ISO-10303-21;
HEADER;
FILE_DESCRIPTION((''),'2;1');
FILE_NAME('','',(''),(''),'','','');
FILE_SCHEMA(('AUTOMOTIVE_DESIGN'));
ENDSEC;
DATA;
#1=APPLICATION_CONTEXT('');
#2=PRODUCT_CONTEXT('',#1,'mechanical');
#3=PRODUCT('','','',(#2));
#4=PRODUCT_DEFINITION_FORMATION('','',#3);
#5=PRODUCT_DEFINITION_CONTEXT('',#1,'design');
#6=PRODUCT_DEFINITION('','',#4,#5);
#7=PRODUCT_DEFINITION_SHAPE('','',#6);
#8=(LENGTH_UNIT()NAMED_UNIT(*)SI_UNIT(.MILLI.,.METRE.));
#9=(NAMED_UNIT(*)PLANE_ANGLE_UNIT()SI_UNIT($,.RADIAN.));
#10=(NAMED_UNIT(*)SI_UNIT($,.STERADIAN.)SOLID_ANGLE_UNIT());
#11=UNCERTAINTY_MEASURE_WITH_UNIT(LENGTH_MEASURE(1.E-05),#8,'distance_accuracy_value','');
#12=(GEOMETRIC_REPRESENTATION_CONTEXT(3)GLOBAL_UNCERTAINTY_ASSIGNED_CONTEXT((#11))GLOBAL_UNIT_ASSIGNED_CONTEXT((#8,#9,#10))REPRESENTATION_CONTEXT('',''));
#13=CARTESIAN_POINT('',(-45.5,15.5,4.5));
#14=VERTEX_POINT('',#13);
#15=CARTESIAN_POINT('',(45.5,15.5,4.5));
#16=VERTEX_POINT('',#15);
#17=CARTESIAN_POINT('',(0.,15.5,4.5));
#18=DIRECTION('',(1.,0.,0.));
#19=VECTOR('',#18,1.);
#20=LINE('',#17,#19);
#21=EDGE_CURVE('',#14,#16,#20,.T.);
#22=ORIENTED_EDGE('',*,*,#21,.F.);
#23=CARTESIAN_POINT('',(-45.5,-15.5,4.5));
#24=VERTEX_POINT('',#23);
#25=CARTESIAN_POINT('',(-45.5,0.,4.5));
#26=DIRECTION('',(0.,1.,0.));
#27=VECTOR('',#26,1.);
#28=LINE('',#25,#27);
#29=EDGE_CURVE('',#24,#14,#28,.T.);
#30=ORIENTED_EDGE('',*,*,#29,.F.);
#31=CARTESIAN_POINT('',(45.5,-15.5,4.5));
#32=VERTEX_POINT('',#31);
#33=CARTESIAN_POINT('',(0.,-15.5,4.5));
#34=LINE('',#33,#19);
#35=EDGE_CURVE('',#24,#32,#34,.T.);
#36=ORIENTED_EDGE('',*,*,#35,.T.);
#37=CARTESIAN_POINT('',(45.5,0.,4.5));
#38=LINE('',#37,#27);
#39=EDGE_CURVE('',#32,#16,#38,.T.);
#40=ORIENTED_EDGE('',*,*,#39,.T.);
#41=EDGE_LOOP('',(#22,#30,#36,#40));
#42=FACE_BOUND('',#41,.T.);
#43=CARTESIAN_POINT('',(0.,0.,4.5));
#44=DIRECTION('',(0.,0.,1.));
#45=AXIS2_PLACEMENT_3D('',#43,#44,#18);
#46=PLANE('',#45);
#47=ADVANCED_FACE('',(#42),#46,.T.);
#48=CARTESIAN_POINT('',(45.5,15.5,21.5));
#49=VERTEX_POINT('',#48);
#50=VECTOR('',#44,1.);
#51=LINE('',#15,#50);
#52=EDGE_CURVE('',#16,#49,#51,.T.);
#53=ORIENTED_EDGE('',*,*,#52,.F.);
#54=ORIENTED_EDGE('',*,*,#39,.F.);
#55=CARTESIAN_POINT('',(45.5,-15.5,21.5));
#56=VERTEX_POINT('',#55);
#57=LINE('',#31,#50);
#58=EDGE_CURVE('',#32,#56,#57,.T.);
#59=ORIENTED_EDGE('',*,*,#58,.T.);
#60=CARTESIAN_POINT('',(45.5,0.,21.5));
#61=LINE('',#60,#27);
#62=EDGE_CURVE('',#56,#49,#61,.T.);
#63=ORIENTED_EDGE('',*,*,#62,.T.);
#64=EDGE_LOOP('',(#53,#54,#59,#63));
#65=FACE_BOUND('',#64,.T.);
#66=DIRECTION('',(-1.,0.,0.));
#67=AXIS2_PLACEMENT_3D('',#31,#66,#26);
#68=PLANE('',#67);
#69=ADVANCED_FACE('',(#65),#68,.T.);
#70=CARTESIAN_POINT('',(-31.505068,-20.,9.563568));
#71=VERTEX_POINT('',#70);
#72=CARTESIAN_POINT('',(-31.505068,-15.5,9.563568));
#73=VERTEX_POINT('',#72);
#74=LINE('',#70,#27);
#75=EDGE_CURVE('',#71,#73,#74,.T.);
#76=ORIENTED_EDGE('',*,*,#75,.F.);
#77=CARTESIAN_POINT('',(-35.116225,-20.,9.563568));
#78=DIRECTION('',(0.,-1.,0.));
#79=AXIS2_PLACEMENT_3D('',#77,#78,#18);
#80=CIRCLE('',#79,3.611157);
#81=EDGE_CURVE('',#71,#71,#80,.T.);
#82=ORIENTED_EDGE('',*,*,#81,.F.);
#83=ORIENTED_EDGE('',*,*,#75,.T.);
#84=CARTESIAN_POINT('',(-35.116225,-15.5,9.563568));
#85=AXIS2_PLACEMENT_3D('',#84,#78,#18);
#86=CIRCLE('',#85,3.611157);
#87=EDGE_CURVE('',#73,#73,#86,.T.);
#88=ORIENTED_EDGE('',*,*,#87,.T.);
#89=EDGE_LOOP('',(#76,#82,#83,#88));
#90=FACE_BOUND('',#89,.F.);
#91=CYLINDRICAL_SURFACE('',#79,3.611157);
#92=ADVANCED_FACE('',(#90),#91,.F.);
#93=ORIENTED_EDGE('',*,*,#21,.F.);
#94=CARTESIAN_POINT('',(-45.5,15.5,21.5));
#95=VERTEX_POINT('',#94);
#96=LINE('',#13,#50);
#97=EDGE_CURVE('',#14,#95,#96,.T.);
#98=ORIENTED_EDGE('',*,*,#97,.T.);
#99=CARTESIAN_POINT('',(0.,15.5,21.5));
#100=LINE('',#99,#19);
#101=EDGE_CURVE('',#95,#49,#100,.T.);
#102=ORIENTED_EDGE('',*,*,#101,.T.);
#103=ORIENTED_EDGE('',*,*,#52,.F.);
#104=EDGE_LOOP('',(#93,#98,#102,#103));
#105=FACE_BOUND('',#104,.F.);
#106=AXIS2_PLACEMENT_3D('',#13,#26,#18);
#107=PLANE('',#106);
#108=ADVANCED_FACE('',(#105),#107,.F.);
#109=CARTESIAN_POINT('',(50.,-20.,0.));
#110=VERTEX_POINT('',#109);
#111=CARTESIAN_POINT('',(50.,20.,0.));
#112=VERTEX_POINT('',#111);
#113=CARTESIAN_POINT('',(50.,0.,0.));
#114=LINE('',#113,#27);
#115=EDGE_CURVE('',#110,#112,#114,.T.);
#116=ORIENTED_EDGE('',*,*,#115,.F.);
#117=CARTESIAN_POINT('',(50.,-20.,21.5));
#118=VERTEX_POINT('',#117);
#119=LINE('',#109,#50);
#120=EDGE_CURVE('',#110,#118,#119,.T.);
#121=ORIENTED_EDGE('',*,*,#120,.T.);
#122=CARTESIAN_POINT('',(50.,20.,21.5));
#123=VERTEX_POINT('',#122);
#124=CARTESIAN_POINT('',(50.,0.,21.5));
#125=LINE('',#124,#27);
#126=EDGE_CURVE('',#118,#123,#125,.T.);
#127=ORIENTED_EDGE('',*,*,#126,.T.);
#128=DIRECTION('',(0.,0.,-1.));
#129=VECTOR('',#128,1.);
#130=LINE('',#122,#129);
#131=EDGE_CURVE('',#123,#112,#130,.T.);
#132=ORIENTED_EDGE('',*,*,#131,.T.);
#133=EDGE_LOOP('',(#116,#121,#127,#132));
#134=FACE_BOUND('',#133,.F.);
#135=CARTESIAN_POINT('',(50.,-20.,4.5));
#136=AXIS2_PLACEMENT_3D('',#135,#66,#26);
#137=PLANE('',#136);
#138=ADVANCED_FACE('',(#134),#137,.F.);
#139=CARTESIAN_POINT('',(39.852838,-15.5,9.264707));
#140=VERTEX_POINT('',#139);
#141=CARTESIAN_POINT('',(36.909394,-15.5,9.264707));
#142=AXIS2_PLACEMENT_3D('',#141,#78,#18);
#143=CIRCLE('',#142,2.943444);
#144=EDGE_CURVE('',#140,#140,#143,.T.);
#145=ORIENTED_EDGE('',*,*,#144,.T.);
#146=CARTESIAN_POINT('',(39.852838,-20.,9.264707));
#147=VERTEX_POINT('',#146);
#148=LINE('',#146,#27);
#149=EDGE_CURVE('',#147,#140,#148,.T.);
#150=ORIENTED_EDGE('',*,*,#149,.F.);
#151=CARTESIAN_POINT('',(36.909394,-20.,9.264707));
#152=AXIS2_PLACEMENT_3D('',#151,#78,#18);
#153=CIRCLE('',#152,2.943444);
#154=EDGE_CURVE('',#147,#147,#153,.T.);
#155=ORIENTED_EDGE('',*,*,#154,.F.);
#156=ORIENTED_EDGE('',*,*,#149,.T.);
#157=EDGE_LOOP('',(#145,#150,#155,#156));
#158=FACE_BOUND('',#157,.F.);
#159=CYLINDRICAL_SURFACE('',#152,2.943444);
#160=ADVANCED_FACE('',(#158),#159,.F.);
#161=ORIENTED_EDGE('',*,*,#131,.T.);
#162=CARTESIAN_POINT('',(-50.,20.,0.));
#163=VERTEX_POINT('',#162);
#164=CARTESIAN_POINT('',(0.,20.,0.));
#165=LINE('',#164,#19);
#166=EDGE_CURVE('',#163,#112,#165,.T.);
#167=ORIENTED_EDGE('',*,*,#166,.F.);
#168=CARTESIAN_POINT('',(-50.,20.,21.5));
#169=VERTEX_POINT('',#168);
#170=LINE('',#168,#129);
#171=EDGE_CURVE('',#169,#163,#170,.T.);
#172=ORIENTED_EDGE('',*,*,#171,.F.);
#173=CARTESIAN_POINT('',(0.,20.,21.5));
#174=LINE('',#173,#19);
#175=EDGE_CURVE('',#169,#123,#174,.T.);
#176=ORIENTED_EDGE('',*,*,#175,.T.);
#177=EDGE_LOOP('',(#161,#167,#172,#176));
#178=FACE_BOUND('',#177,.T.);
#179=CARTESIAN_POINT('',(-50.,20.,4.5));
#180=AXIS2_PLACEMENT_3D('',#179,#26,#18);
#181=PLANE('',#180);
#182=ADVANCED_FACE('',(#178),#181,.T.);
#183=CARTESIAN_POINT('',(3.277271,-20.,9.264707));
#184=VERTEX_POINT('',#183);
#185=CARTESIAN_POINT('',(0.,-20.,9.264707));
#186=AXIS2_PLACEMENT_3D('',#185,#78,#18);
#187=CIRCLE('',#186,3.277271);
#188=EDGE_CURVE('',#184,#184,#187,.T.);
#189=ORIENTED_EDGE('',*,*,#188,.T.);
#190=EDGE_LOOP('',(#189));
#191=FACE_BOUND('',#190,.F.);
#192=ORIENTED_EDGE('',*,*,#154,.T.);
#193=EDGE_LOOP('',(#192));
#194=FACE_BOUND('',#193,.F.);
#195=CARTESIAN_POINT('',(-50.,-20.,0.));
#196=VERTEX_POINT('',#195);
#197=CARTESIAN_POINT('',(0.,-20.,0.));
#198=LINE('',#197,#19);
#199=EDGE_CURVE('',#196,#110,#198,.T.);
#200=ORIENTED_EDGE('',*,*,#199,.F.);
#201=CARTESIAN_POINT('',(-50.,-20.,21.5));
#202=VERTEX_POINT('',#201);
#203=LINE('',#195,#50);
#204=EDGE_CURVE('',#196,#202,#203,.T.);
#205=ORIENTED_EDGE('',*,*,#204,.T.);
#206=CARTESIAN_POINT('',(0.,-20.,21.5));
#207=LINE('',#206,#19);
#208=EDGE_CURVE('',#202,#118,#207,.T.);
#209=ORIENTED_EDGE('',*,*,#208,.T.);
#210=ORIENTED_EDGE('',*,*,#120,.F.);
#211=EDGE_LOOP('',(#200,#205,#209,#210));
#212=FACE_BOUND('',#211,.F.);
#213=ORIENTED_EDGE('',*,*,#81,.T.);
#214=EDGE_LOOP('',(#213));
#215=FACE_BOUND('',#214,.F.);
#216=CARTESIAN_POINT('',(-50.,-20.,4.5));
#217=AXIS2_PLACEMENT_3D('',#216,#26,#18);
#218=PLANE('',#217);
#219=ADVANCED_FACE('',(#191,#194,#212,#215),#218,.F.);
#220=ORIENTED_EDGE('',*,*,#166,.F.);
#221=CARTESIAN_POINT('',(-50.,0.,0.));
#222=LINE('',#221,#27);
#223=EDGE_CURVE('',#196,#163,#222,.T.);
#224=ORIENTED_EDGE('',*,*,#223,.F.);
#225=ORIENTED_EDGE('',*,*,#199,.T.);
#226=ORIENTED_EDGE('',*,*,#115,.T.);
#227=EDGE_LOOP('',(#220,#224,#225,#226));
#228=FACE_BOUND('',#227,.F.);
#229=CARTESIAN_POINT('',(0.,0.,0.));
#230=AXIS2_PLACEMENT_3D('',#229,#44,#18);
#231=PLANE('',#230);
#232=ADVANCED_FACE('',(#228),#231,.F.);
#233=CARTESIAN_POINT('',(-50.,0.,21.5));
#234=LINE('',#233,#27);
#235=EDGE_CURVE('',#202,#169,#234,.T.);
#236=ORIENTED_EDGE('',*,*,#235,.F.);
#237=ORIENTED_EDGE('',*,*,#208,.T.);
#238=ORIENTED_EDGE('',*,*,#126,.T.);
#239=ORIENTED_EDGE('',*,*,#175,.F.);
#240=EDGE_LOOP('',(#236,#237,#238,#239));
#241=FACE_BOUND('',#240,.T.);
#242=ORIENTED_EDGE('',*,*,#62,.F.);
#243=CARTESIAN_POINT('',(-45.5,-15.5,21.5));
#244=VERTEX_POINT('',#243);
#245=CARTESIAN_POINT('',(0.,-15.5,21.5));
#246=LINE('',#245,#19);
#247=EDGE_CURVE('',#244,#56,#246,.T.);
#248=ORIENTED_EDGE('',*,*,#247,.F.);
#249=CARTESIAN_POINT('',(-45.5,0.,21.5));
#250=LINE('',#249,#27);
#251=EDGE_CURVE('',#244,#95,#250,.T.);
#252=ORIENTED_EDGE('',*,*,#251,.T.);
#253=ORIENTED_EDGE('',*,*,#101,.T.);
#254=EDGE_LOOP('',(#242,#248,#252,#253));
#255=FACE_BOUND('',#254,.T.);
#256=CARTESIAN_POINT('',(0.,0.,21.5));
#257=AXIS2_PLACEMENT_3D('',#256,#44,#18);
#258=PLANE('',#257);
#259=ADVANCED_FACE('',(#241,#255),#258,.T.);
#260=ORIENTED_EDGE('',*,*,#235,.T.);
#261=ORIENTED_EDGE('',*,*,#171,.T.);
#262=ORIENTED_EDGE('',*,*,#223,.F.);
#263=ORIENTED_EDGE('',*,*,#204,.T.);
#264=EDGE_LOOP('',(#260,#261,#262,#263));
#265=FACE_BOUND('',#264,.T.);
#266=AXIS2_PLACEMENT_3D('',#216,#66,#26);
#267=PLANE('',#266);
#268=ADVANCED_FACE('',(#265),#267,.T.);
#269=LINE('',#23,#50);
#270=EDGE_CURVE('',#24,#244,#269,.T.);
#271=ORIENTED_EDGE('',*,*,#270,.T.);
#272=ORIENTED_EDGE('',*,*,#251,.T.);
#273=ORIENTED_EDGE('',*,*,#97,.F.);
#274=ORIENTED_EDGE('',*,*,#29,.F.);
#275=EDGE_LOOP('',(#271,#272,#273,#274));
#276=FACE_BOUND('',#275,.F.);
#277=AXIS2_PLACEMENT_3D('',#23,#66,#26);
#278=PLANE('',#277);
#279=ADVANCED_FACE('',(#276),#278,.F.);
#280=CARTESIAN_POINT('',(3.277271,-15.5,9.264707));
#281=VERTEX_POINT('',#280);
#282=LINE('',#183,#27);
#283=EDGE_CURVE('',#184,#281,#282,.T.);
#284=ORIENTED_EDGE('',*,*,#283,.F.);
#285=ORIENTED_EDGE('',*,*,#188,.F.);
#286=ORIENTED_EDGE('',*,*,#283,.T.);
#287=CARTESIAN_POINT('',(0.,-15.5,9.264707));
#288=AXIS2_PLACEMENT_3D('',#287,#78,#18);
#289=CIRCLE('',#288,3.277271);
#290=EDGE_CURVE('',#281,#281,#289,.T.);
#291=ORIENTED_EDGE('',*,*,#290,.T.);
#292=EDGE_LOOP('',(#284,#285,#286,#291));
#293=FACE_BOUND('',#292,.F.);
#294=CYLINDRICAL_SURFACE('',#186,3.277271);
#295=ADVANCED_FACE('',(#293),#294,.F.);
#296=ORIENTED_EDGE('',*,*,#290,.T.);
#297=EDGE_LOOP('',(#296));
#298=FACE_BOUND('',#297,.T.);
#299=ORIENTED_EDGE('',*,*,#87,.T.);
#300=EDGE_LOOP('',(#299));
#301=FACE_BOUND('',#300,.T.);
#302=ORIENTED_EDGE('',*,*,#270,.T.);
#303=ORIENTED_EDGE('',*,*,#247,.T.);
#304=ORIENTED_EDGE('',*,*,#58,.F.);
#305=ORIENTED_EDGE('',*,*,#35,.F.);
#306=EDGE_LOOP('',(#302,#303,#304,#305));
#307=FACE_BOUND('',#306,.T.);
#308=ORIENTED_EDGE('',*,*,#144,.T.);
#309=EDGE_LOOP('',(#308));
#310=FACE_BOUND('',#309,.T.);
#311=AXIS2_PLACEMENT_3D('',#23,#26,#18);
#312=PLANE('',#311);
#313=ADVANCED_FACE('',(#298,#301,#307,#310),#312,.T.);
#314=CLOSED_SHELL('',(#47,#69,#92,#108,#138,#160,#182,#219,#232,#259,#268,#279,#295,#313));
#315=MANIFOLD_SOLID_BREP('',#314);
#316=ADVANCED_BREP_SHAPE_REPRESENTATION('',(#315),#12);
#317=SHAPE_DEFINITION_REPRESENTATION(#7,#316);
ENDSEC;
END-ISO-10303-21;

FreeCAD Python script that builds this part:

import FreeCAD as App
import Part
import Sketcher

V = App.Vector


def add_polygon(sketch, points):
    """Adds a closed chain of lines whose ends are joined by coincident constraints."""
    first, n = sketch.GeometryCount, len(points)
    for a, b in zip(points, points[1:] + points[:1]):
        sketch.addGeometry(Part.LineSegment(App.Vector(*a, 0), App.Vector(*b, 0)), False)
    for i in range(n):
        sketch.addConstraint(Sketcher.Constraint("Coincident", first + i, 2, first + (i + 1) % n, 1))

doc = App.newDocument("Part")
params = doc.addObject("Spreadsheet::Sheet", "Params")
for row, (alias, value) in enumerate([
    ("sketch1_width", "100 mm"),
    ("sketch1_height", "40 mm"),
    ("pad1_length", "4.5 mm"),
    ("sketch2_width", "100 mm"),
    ("sketch2_width2", "91 mm"),
    ("sketch2_height", "40 mm"),
    ("sketch2_height2", "31 mm"),
    ("pad2_length", "17 mm"),
    ("pocket1_length", "25 mm"),
], start=1):
    params.set(f"A{row}", alias)
    params.set(f"B{row}", "=" + value)
    params.setAlias(f"B{row}", alias)

body = doc.addObject("PartDesign::Body", "Body")

# Sketch on XY plane
sketch1 = body.newObject("Sketcher::SketchObject", "Sketch")
sketch1.AttachmentSupport = (doc.getObject("XY_Plane"), [""])
sketch1.MapMode = "FlatFace"
add_polygon(sketch1, [(-50, 20), (-50, -20), (50, -20), (50, 20)])  # lines 0-3
sketch1.addConstraint([
    Sketcher.Constraint("Vertical", 0),
    Sketcher.Constraint("Horizontal", 1),
    Sketcher.Constraint("Vertical", 2),
    Sketcher.Constraint("Horizontal", 3),
    Sketcher.Constraint("Symmetric", 0, 2, 2, 2, -1, 1),
    Sketcher.Constraint("DistanceX", 1, 1, 1, 2, 100.0),
    Sketcher.Constraint("DistanceY", 0, 2, 0, 1, 40.0),
])
sketch1.setExpression("Constraints[9]", "Params.sketch1_width")
sketch1.setExpression("Constraints[10]", "Params.sketch1_height")
pad1 = body.newObject("PartDesign::Pad", "Pad")
pad1.Profile = sketch1
pad1.setExpression("Length", "Params.pad1_length")

# Sketch on XY plane
sketch2 = body.newObject("Sketcher::SketchObject", "Sketch001")
sketch2.AttachmentSupport = (doc.getObject("XY_Plane"), [""])
sketch2.MapMode = "FlatFace"
sketch2.AttachmentOffset = App.Placement(V(0, 0, 4.5), App.Rotation())
add_polygon(sketch2, [(-50, 20), (-50, -20), (50, -20), (50, 20)])  # lines 0-3
add_polygon(sketch2, [(45.5, -15.5), (-45.5, -15.5), (-45.5, 15.5), (45.5, 15.5)])  # lines 4-7
sketch2.addConstraint([
    Sketcher.Constraint("Vertical", 0),
    Sketcher.Constraint("Horizontal", 1),
    Sketcher.Constraint("Vertical", 2),
    Sketcher.Constraint("Horizontal", 3),
    Sketcher.Constraint("Horizontal", 4),
    Sketcher.Constraint("Vertical", 5),
    Sketcher.Constraint("Horizontal", 6),
    Sketcher.Constraint("Vertical", 7),
    Sketcher.Constraint("Symmetric", 0, 2, 2, 2, -1, 1),
    Sketcher.Constraint("Symmetric", 4, 2, 6, 2, -1, 1),
    Sketcher.Constraint("DistanceX", 1, 1, 1, 2, 100.0),
    Sketcher.Constraint("DistanceX", 4, 2, 4, 1, 91.0),
    Sketcher.Constraint("DistanceY", 0, 2, 0, 1, 40.0),
    Sketcher.Constraint("DistanceY", 5, 1, 5, 2, 31.0),
])
sketch2.setExpression("Constraints[18]", "Params.sketch2_width")
sketch2.setExpression("Constraints[19]", "Params.sketch2_width2")
sketch2.setExpression("Constraints[20]", "Params.sketch2_height")
sketch2.setExpression("Constraints[21]", "Params.sketch2_height2")
pad2 = body.newObject("PartDesign::Pad", "Pad001")
pad2.Profile = sketch2
pad2.setExpression("Length", "Params.pad2_length")

# Sketch on XZ plane
sketch3 = body.newObject("Sketcher::SketchObject", "Sketch002")
sketch3.AttachmentSupport = (doc.getObject("XZ_Plane"), [""])
sketch3.MapMode = "FlatFace"
sketch3.AttachmentOffset = App.Placement(V(0, 0, 20), App.Rotation())
sketch3.addGeometry([
    Part.Circle(V(0, 9.264707, 0), V(0, 0, 1), 3.277271),
    Part.Circle(V(36.909394, 9.264707, 0), V(0, 0, 1), 2.943444),
    Part.Circle(V(-35.116225, 9.563568, 0), V(0, 0, 1), 3.611157),
], False)
sketch3.addConstraint([
    Sketcher.Constraint("PointOnObject", 0, 3, -2),
    Sketcher.Constraint("Horizontal", 0, 3, 1, 3),
    Sketcher.Constraint("Diameter", 0, 6.554542),
    Sketcher.Constraint("Diameter", 1, 5.886888),
    Sketcher.Constraint("Diameter", 2, 7.222314),
    Sketcher.Constraint("DistanceY", 0, 3, 2, 3, 0.298861),
    Sketcher.Constraint("DistanceX", 2, 3, 1, 3, 72.025619),
    Sketcher.Constraint("DistanceY", -1, 1, 0, 3, 9.264707),
    Sketcher.Constraint("DistanceX", -1, 1, 1, 3, 36.909394),
])
pocket1 = body.newObject("PartDesign::Pocket", "Pocket")
pocket1.Profile = sketch3
pocket1.setExpression("Length", "Params.pocket1_length")

doc.recompute()
